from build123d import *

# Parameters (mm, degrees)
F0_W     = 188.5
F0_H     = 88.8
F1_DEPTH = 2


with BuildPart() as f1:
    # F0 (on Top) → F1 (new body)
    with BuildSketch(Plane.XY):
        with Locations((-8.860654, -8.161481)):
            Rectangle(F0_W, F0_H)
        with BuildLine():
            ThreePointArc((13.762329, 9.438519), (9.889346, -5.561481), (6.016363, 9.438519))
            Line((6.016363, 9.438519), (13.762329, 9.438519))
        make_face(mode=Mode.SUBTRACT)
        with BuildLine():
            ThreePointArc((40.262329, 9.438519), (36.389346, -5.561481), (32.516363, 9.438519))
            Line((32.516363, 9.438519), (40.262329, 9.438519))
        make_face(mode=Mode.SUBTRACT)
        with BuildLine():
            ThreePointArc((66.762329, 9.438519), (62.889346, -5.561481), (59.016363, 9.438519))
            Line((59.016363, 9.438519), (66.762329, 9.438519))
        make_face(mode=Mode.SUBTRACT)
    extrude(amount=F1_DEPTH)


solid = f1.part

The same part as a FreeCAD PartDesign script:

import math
import FreeCAD as App
import Part
import Sketcher


def add_polygon(sketch, points):
    """Adds a closed chain of lines whose ends are joined by coincident constraints."""
    first, n = sketch.GeometryCount, len(points)
    for a, b in zip(points, points[1:] + points[:1]):
        sketch.addGeometry(Part.LineSegment(App.Vector(*a, 0), App.Vector(*b, 0)), False)
    for i in range(n):
        sketch.addConstraint(Sketcher.Constraint("Coincident", first + i, 2, first + (i + 1) % n, 1))

doc = App.newDocument("Part")
params = doc.addObject("Spreadsheet::Sheet", "Params")
for row, (alias, value) in enumerate([
    ("sketch1_radius", "8 mm"),
    ("sketch1_width", "188.5 mm"),
    ("sketch1_height", "88.8 mm"),
    ("pad1_length", "2 mm"),
], start=1):
    params.set(f"A{row}", alias)
    params.set(f"B{row}", "=" + value)
    params.setAlias(f"B{row}", alias)

body = doc.addObject("PartDesign::Body", "Body")

# Sketch on XY plane
sketch1 = body.newObject("Sketcher::SketchObject", "Sketch")
sketch1.AttachmentSupport = (doc.getObject("XY_Plane"), [""])
sketch1.MapMode = "FlatFace"
add_polygon(sketch1, [(-103.110654, 36.238519), (-103.110654, -52.561481), (85.389346, -52.561481), (85.389346, 36.238519)])  # lines 0-3
sketch1.addGeometry(Part.LineSegment(App.Vector(6.016363, 9.438519, 0), App.Vector(13.762329, 9.438519, 0)), False)  # 4
sketch1.addGeometry(Part.ArcOfCircle(Part.Circle(App.Vector(9.889346, 2.438519, 0), App.Vector(0, 0, 1), 8), math.radians(118.955022), math.radians(421.044978)), False)  # 5
sketch1.addGeometry(Part.LineSegment(App.Vector(32.516363, 9.438519, 0), App.Vector(40.262329, 9.438519, 0)), False)  # 6
sketch1.addGeometry(Part.ArcOfCircle(Part.Circle(App.Vector(36.389346, 2.438519, 0), App.Vector(0, 0, 1), 8), math.radians(118.955022), math.radians(421.044978)), False)  # 7
sketch1.addGeometry(Part.LineSegment(App.Vector(59.016363, 9.438519, 0), App.Vector(66.762329, 9.438519, 0)), False)  # 8
sketch1.addGeometry(Part.ArcOfCircle(Part.Circle(App.Vector(62.889346, 2.438519, 0), App.Vector(0, 0, 1), 8), math.radians(118.955022), math.radians(421.044978)), False)  # 9
sketch1.addConstraint(Sketcher.Constraint("Coincident", 4, 1, 5, 1))
sketch1.addConstraint(Sketcher.Constraint("Coincident", 5, 2, 4, 2))
sketch1.addConstraint(Sketcher.Constraint("Coincident", 6, 1, 7, 1))
sketch1.addConstraint(Sketcher.Constraint("Coincident", 7, 2, 6, 2))
sketch1.addConstraint(Sketcher.Constraint("Coincident", 8, 1, 9, 1))
sketch1.addConstraint(Sketcher.Constraint("Coincident", 9, 2, 8, 2))
sketch1.addConstraint(Sketcher.Constraint("Vertical", 0))
sketch1.addConstraint(Sketcher.Constraint("Horizontal", 1))
sketch1.addConstraint(Sketcher.Constraint("Vertical", 2))
sketch1.addConstraint(Sketcher.Constraint("Horizontal", 3))
sketch1.addConstraint(Sketcher.Constraint("Horizontal", 4))
sketch1.addConstraint(Sketcher.Constraint("Horizontal", 6))
sketch1.addConstraint(Sketcher.Constraint("Horizontal", 8))
sketch1.addConstraint(Sketcher.Constraint("Equal", 5, 7))
sketch1.addConstraint(Sketcher.Constraint("Equal", 7, 9))
sketch1.addConstraint(Sketcher.Constraint("Horizontal", 5, 3, 7, 3))
sketch1.addConstraint(Sketcher.Constraint("Horizontal", 7, 3, 9, 3))
sketch1.addConstraint(Sketcher.Constraint("Horizontal", 5, 2, 6, 1))
sketch1.addConstraint(Sketcher.Constraint("Horizontal", 7, 2, 8, 1))
sketch1.addConstraint(Sketcher.Constraint("Radius", 5, 8.0))
sketch1.addConstraint(Sketcher.Constraint("DistanceX", 1, 1, 1, 2, 188.5))
sketch1.addConstraint(Sketcher.Constraint("DistanceY", 0, 2, 0, 1, 88.8))
sketch1.addConstraint(Sketcher.Constraint("DistanceX", 5, 3, 9, 3, 53.0))
sketch1.addConstraint(Sketcher.Constraint("DistanceX", 0, 2, 5, 3, 113.0))
sketch1.addConstraint(Sketcher.Constraint("DistanceY", 0, 2, 5, 3, 55.0))
sketch1.addConstraint(Sketcher.Constraint("DistanceX", 7, 3, 1, 2, 49.0))
sketch1.addConstraint(Sketcher.Constraint("DistanceY", 5, 3, 4, 1, 7.0))
sketch1.addConstraint(Sketcher.Constraint("DistanceY", -1, 1, 5, 3, 2.438519))
sketch1.addConstraint(Sketcher.Constraint("DistanceX", -1, 1, 5, 2, 13.762329))
sketch1.setExpression("Constraints[23]", "Params.sketch1_radius")
sketch1.setExpression("Constraints[24]", "Params.sketch1_width")
sketch1.setExpression("Constraints[25]", "Params.sketch1_height")
pad1 = body.newObject("PartDesign::Pad", "Pad")
pad1.Profile = sketch1
pad1.setExpression("Length", "Params.pad1_length")

doc.recompute()
